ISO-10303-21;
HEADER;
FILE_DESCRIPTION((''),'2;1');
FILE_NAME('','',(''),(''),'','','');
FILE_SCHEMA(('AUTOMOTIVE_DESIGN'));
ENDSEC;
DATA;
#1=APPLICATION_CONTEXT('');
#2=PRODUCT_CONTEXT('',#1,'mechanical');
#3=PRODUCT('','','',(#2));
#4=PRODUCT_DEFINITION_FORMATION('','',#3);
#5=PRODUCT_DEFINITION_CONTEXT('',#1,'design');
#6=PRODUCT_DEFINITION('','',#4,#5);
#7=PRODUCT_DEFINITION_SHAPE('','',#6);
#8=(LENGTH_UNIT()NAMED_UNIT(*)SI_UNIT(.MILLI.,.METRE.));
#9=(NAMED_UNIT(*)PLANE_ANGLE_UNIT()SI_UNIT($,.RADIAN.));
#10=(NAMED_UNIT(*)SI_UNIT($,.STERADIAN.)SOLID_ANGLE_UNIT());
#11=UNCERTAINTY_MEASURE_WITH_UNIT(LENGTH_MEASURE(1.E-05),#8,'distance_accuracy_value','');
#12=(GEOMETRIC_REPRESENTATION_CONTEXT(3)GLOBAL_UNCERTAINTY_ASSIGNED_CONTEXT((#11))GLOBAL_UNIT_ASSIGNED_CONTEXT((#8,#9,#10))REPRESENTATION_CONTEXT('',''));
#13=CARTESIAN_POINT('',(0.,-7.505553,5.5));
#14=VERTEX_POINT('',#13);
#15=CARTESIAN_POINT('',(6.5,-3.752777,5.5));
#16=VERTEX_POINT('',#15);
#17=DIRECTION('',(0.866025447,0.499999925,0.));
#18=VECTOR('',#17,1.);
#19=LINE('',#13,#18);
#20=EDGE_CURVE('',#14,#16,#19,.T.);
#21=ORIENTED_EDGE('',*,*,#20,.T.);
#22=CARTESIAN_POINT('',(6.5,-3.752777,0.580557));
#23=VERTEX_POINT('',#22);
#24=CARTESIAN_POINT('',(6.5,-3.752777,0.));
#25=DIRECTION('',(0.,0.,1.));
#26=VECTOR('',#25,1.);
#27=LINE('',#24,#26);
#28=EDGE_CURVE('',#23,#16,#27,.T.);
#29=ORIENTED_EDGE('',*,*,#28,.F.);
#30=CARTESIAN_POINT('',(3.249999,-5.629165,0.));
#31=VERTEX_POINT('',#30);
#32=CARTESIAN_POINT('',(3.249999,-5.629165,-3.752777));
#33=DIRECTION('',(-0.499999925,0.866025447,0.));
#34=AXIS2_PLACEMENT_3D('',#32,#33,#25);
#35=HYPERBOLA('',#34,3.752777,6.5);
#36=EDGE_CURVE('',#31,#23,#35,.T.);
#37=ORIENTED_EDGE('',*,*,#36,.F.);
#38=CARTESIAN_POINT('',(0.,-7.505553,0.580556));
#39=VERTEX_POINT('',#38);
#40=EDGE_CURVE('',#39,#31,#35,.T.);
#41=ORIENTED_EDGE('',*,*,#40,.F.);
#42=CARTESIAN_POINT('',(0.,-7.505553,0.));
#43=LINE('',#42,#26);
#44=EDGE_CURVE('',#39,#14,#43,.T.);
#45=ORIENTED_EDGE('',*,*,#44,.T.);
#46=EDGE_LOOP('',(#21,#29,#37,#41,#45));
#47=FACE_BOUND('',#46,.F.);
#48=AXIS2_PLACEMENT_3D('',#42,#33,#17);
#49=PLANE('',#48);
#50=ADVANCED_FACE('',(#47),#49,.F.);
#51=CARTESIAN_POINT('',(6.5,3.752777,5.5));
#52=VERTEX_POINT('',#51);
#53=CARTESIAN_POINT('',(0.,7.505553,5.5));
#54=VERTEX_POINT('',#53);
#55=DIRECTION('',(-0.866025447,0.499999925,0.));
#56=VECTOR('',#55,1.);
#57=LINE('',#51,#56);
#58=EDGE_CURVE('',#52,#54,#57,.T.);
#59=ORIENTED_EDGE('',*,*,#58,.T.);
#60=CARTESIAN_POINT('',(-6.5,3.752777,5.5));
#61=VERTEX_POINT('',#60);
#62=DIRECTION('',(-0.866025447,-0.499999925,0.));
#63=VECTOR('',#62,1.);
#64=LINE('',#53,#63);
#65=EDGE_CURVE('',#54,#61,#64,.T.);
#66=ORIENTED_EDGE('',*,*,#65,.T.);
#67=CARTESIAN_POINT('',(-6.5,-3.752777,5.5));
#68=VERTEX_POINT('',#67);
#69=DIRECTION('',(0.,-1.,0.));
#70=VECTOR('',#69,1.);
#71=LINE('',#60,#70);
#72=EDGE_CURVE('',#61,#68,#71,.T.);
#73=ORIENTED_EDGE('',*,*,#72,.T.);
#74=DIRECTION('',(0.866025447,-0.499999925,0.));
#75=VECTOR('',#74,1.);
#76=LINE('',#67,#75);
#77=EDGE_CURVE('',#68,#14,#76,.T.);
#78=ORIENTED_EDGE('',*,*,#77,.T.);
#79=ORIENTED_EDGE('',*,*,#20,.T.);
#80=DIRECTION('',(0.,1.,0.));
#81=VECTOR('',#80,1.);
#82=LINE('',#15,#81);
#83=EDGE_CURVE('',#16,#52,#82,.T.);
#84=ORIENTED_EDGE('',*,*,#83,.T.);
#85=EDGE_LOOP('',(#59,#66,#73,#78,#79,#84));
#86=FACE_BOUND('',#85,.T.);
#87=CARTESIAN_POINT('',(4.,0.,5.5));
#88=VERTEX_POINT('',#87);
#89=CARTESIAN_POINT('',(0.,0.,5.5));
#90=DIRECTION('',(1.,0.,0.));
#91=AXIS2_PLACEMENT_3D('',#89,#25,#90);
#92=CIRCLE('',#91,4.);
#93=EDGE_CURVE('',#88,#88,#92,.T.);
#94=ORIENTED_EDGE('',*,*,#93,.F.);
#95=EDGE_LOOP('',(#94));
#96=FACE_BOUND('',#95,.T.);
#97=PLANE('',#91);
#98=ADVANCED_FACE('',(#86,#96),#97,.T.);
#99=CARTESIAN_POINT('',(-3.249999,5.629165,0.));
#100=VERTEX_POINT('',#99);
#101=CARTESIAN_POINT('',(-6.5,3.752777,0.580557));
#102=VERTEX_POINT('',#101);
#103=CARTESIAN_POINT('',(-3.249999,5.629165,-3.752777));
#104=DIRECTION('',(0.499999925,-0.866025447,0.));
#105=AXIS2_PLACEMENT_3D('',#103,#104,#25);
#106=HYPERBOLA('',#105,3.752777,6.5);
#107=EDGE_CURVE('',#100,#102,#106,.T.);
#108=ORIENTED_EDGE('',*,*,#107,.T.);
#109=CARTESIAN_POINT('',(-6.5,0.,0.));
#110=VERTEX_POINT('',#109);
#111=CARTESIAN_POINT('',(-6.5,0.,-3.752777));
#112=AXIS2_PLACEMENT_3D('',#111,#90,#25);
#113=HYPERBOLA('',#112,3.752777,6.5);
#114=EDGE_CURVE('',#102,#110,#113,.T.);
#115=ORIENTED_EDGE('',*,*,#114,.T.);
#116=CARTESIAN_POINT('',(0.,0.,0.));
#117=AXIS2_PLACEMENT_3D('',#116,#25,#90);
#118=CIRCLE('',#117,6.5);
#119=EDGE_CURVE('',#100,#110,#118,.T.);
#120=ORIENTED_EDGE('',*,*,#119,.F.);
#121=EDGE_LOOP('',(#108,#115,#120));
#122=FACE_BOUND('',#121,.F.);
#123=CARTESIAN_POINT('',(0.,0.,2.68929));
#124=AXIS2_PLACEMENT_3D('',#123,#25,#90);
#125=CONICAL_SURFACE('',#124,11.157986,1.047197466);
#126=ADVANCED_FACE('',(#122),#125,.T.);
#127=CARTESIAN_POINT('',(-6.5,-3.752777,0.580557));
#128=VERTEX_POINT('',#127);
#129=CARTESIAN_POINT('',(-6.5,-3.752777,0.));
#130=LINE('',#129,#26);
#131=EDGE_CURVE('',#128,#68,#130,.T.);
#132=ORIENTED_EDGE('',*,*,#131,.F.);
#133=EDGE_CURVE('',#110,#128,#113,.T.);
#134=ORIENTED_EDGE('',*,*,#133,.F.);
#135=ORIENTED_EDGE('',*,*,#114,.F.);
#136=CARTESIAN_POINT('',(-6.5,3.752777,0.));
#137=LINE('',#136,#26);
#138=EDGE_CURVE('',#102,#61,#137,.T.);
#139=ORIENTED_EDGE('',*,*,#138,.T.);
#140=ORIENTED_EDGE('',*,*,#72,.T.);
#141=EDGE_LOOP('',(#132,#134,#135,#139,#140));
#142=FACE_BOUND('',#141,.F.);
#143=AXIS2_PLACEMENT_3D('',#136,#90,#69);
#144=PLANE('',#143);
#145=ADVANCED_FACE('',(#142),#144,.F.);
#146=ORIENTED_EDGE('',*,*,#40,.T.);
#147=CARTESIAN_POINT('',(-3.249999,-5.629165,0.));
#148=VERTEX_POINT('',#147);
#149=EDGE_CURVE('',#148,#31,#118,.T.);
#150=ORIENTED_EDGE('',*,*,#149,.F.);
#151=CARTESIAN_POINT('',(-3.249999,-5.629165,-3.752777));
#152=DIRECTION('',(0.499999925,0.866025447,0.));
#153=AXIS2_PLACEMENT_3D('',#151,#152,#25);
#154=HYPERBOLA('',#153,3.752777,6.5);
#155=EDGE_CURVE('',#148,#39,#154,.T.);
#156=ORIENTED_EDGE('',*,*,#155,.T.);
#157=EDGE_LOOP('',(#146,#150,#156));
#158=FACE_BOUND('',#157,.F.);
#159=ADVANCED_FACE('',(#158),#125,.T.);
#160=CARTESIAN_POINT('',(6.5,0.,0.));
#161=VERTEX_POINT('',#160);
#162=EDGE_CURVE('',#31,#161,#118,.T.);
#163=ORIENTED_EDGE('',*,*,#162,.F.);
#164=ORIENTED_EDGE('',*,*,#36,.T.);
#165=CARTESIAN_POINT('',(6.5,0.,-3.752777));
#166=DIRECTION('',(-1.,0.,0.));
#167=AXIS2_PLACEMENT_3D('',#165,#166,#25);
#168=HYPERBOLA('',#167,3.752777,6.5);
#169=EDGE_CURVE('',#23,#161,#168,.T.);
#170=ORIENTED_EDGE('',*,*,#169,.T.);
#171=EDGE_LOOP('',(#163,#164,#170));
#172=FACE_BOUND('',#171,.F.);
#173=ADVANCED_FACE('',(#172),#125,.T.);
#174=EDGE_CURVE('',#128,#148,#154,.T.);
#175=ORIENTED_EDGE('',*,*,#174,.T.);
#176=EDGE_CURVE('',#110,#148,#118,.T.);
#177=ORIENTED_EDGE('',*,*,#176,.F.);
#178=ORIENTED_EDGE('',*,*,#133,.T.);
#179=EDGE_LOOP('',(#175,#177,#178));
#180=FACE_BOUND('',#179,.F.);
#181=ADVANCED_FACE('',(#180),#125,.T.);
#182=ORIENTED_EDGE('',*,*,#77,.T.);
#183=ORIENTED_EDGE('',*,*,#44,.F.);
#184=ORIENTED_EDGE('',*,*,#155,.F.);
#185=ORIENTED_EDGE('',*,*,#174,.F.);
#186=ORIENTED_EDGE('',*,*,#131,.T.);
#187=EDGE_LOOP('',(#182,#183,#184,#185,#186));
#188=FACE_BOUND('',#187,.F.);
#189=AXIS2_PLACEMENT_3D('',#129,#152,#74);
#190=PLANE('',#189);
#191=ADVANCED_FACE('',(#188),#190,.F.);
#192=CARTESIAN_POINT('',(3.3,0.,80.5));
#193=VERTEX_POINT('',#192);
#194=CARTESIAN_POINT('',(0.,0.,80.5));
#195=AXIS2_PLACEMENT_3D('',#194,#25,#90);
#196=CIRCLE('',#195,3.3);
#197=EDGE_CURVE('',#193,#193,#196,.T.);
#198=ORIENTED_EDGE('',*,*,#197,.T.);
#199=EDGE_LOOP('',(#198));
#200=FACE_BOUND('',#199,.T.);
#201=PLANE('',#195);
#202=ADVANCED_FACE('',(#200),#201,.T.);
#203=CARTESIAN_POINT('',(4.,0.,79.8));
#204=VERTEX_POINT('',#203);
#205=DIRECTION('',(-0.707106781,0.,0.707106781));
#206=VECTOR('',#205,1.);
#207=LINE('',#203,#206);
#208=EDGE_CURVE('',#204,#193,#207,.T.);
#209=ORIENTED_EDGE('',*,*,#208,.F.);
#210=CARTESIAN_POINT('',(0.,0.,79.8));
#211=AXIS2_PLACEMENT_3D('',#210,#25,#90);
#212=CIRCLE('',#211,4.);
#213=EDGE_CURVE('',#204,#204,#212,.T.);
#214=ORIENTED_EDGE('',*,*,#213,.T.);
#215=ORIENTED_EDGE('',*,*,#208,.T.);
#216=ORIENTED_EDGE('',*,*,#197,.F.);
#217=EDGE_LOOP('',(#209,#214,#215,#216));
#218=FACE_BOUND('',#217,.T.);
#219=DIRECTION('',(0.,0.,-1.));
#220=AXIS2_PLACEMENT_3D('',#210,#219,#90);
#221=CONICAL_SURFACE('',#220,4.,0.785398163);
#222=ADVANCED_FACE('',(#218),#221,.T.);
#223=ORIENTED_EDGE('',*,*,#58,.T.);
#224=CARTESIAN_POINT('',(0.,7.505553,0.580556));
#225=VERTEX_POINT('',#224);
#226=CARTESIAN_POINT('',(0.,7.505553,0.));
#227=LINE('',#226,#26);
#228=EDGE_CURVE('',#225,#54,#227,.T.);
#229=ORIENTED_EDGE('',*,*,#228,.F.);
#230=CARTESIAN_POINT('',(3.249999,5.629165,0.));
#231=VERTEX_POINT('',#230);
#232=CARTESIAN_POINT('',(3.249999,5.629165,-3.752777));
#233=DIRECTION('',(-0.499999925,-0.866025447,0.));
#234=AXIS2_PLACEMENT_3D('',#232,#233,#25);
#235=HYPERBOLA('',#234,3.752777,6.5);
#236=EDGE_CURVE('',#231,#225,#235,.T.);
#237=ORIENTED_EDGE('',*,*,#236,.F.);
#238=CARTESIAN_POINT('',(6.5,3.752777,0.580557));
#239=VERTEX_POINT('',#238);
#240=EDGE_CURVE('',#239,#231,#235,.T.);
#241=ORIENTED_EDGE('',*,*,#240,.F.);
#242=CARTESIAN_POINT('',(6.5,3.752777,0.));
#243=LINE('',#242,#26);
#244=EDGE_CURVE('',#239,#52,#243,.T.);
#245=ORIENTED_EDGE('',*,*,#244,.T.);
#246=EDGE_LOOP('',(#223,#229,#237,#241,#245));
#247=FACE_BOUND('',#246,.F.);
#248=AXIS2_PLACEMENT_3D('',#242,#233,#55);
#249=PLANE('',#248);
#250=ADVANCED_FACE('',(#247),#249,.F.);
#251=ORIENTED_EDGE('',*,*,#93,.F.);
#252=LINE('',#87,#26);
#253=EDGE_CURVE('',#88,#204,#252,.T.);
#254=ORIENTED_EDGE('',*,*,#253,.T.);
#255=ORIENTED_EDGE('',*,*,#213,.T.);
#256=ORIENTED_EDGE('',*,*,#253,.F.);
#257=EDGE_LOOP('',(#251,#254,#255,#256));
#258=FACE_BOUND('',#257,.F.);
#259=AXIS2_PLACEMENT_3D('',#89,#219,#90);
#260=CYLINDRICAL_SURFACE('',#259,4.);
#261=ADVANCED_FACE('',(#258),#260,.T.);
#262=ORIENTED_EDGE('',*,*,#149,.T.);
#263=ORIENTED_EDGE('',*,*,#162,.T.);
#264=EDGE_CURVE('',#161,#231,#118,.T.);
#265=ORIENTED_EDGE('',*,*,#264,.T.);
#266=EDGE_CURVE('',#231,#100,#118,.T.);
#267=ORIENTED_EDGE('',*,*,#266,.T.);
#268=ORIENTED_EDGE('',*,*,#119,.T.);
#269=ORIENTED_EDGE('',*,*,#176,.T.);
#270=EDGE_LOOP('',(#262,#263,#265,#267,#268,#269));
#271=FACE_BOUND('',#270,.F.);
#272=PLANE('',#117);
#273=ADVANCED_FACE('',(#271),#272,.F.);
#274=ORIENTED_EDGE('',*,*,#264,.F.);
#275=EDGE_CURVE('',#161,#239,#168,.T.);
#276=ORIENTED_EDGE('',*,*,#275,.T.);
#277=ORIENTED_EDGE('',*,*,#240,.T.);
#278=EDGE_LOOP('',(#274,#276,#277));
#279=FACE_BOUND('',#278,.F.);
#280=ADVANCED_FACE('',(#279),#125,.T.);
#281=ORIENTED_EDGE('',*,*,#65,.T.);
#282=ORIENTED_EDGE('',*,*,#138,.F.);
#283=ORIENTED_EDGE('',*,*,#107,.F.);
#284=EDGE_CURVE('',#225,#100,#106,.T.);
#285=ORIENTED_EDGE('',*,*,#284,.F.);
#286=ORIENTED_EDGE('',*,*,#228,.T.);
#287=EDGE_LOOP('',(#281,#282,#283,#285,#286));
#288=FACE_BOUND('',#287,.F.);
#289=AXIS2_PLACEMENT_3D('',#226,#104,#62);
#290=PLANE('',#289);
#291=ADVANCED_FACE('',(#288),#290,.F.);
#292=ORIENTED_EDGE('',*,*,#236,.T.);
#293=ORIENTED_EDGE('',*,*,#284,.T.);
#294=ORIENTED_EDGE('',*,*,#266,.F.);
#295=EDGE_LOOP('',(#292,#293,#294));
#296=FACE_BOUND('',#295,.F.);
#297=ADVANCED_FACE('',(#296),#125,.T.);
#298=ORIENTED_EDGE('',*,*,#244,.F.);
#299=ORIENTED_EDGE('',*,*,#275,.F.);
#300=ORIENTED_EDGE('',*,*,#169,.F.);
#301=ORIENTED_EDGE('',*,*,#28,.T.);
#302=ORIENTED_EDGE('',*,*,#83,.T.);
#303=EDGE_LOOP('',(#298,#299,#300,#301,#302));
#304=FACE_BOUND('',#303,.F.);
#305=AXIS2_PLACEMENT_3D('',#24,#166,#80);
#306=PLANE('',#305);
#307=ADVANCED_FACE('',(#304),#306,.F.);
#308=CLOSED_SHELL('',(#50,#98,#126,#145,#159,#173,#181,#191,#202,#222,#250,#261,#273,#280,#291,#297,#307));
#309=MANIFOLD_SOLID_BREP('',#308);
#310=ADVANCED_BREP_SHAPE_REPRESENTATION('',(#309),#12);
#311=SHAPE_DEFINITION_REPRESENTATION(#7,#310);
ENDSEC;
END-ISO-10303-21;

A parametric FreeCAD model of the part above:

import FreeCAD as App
import Part
import Sketcher
Q = App.Units.Quantity


def edges_at(feature, points):
    """Names of the edges that pass closest to the given points."""
    edges = feature.Shape.Edges
    near = lambda p: min(range(len(edges)), key=lambda i: edges[i].distToShape(Part.Vertex(*p))[0])
    return sorted({f"Edge{near(p) + 1}" for p in points})


def add_polygon(sketch, points):
    """Adds a closed chain of lines whose ends are joined by coincident constraints."""
    first, n = sketch.GeometryCount, len(points)
    for a, b in zip(points, points[1:] + points[:1]):
        sketch.addGeometry(Part.LineSegment(App.Vector(*a, 0), App.Vector(*b, 0)), False)
    for i in range(n):
        sketch.addConstraint(Sketcher.Constraint("Coincident", first + i, 2, first + (i + 1) % n, 1))

doc = App.newDocument("Part")
body = doc.addObject("PartDesign::Body", "Body")

sketch1 = body.newObject("Sketcher::SketchObject", "Sketch")
sketch1.AttachmentSupport = (doc.getObject("XY_Plane"), [""])
sketch1.MapMode = "FlatFace"
add_polygon(sketch1, [(0, -8), (6, -4), (6, 4), (0, 8), (-6, 4), (-6, -4)])
sketch1.addConstraint([
    Sketcher.Constraint("Vertical", 1),
    Sketcher.Constraint("Vertical", 4),
    Sketcher.Constraint("Symmetric", 0, 2, 3, 2, -1, 1),
    Sketcher.Constraint("Symmetric", 2, 2, 5, 2, -1, 1),
    Sketcher.Constraint("PointOnObject", 2, 2, -2),
    Sketcher.Constraint("Parallel", 2, 5),
    Sketcher.Constraint("Horizontal", 1, 2, 3, 2),
    Sketcher.Constraint("Angle", 0, Q("29.999995 deg")),
    Sketcher.Constraint("DistanceX", 3, 2, 1, 2, 13.0),
    Sketcher.Constraint("DistanceY", 1, 1, 1, 2, 7.505554),
])
pad1 = body.newObject("PartDesign::Pad", "Pad")
pad1.Profile = sketch1
pad1.Length = 5.5

sketch2 = body.newObject("Sketcher::SketchObject", "Sketch001")
sketch2.AttachmentSupport = (doc.getObject("XY_Plane"), [""])
sketch2.MapMode = "FlatFace"
sketch2.AttachmentOffset = App.Placement(App.Vector(0, 0, 5.5), App.Rotation())
sketch2.addGeometry(Part.Circle(App.Vector(0, 0, 0), App.Vector(0, 0, 1), 4), False)
sketch2.addConstraint([
    Sketcher.Constraint("Coincident", 0, 3, -1, 1),
    Sketcher.Constraint("Diameter", 0, 8.0),
])
pad2 = body.newObject("PartDesign::Pad", "Pad001")
pad2.Profile = sketch2
pad2.Length = 75

sketch3 = body.newObject("Sketcher::SketchObject", "Sketch002")
sketch3.AttachmentSupport = (doc.getObject("XZ_Plane"), [""])
sketch3.MapMode = "FlatFace"
add_polygon(sketch3, [(11.2, 2.7), (6.5, 0), (11.2, 0)])
sketch3.addConstraint([
    Sketcher.Constraint("Horizontal", 1),
    Sketcher.Constraint("Vertical", 2),
    Sketcher.Constraint("PointOnObject", 0, 2, -1),
    Sketcher.Constraint("Angle", 0, Q("-149.999995 deg")),
    Sketcher.Constraint("DistanceX", -1, 1, 0, 2, 6.5),
    Sketcher.Constraint("DistanceY", 2, 1, 2, 2, 2.68929),
])
groove = body.newObject("PartDesign::Groove", "Groove")
groove.Profile = sketch3
groove.ReferenceAxis = (sketch3, ["V_Axis"])
groove.Angle = 360
doc.recompute()

chamfer = body.newObject("PartDesign::Chamfer", "Chamfer")
chamfer.Base = (groove, edges_at(groove, [(-4, 0, 80.5)]))
chamfer.Size = 0.7

doc.recompute()
